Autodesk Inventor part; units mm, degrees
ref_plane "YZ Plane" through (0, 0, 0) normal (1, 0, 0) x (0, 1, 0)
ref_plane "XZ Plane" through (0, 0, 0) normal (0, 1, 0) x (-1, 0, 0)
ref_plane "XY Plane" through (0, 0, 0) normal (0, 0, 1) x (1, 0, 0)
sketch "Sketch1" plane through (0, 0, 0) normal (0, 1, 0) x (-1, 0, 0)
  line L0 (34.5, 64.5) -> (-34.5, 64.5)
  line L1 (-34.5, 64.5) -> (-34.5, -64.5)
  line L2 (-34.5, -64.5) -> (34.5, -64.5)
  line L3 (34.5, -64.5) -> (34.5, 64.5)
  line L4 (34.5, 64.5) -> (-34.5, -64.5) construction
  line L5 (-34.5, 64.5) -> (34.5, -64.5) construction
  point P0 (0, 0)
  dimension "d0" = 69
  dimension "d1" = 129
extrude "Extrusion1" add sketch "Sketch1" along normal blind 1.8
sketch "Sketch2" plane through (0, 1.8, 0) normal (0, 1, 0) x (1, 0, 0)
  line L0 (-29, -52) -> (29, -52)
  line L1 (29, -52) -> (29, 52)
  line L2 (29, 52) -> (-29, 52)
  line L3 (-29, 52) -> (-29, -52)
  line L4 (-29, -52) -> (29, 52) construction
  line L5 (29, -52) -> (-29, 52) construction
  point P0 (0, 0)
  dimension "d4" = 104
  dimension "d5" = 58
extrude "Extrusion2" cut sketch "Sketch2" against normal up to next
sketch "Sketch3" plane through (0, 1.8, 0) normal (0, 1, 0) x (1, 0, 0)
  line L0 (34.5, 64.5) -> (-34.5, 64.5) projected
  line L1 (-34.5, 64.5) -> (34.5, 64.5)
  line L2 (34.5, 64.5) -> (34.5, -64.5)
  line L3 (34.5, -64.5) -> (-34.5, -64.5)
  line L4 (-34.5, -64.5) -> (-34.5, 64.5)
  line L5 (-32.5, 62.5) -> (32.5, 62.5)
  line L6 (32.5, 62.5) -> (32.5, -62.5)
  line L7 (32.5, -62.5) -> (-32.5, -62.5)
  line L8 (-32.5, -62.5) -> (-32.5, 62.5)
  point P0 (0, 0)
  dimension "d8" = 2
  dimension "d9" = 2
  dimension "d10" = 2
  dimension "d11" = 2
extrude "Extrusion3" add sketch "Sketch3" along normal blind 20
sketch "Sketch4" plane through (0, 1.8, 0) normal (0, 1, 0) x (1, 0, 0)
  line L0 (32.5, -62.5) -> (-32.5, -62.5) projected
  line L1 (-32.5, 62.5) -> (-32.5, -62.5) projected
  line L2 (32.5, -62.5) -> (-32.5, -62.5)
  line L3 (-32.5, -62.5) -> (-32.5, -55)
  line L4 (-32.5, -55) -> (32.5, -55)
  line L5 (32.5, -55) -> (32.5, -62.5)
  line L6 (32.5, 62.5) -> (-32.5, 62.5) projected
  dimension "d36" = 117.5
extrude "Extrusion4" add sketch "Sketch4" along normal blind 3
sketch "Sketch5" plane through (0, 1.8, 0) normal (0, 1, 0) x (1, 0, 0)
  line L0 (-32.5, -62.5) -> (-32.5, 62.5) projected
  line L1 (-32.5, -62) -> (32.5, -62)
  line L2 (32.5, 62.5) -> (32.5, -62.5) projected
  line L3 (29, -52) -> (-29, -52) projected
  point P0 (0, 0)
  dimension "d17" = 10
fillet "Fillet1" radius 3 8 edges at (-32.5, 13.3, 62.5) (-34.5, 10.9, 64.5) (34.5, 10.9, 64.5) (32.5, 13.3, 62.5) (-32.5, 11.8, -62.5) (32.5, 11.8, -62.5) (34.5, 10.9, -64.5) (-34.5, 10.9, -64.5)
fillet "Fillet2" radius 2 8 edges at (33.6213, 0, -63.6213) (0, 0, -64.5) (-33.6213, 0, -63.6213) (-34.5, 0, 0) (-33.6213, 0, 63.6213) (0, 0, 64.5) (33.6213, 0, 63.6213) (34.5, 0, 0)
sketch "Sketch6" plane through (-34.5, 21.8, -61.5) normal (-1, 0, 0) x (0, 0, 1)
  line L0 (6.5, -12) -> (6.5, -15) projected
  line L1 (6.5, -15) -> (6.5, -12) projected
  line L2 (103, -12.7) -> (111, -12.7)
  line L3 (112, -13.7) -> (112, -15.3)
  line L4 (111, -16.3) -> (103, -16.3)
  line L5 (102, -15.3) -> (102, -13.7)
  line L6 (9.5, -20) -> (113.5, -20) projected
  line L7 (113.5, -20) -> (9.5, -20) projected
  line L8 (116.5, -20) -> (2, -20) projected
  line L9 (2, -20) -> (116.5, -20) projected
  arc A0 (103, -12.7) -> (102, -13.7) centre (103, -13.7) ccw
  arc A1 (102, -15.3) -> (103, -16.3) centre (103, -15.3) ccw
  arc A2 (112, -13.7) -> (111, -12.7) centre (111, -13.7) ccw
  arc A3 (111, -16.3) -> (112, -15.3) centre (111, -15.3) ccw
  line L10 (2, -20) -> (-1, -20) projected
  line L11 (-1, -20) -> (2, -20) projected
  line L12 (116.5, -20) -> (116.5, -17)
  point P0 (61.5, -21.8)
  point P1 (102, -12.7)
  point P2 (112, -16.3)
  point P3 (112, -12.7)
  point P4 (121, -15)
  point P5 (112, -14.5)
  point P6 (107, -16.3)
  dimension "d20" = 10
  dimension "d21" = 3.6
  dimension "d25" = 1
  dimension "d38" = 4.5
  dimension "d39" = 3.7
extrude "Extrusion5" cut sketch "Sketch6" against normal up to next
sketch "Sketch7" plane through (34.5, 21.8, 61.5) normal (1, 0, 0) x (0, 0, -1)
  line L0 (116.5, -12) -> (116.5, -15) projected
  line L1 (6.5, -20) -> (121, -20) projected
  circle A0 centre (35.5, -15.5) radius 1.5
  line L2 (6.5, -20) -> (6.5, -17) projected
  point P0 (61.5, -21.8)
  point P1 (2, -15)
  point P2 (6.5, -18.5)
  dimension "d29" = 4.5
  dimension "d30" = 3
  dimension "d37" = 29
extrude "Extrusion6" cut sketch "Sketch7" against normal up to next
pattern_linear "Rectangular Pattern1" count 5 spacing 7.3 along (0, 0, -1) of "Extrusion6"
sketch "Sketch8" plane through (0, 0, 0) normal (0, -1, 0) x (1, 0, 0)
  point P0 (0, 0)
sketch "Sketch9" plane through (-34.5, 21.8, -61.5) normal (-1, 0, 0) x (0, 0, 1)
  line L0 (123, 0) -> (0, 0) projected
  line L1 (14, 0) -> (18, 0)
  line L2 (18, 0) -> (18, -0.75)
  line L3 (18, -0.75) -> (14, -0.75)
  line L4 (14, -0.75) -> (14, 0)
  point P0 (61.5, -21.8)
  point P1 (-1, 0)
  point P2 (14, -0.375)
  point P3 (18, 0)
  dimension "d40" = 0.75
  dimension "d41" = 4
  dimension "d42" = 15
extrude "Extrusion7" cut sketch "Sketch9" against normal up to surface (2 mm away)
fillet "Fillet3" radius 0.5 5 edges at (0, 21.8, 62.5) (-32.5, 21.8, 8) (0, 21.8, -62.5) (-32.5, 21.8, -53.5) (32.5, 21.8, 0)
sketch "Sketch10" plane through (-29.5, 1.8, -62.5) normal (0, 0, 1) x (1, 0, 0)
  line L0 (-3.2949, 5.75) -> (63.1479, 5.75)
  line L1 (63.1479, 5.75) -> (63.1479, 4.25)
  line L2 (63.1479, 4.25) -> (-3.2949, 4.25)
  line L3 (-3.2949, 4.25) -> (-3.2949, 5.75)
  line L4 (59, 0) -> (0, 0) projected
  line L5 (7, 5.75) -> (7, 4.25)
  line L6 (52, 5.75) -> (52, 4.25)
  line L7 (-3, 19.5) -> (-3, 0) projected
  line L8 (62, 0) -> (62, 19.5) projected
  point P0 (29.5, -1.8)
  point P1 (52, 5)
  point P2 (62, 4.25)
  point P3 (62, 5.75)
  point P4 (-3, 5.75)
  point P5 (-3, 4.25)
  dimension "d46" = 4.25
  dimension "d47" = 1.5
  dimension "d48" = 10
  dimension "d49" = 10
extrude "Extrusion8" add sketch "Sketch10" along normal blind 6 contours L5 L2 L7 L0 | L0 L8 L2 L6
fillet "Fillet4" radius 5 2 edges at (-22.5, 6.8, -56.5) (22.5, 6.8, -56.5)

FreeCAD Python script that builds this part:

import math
import FreeCAD as App
import Part
import Sketcher

V = App.Vector
Q = App.Units.Quantity


def edges_at(feature, points):
    """Names of the edges that pass closest to the given points."""
    edges = feature.Shape.Edges
    near = lambda p: min(range(len(edges)), key=lambda i: edges[i].distToShape(Part.Vertex(*p))[0])
    return sorted({f"Edge{near(p) + 1}" for p in points})

doc = App.newDocument("Part")
body = doc.addObject("PartDesign::Body", "Body")

sketch1 = body.newObject("Sketcher::SketchObject", "Sketch")
sketch1.AttachmentSupport = (doc.getObject("XZ_Plane"), [""])
sketch1.MapMode = "FlatFace"
sketch1.addGeometry([
    Part.LineSegment(V(-34.5, -64.5, 0), V(-34.5, 64.5, 0)),
    Part.LineSegment(V(-34.5, 64.5, 0), V(34.5, 64.5, 0)),
    Part.LineSegment(V(34.5, 64.5, 0), V(34.5, -64.5, 0)),
    Part.LineSegment(V(34.5, -64.5, 0), V(-34.5, -64.5, 0)),
], False)
sketch1.addConstraint([
    Sketcher.Constraint("Coincident", 0, 2, 1, 1),
    Sketcher.Constraint("Coincident", 1, 2, 2, 1),
    Sketcher.Constraint("Coincident", 2, 2, 3, 1),
    Sketcher.Constraint("Coincident", 3, 2, 0, 1),
    Sketcher.Constraint("Vertical", 0),
    Sketcher.Constraint("Horizontal", 1),
    Sketcher.Constraint("Vertical", 2),
    Sketcher.Constraint("Horizontal", 3),
    Sketcher.Constraint("Symmetric", 0, 2, 2, 2, -1, 1),
    Sketcher.Constraint("DistanceX", 1, 1, 1, 2, Q("69 mm")),
    Sketcher.Constraint("DistanceY", 0, 1, 0, 2, Q("129 mm")),
])
pad1 = body.newObject("PartDesign::Pad", "Pad")
pad1.Profile = sketch1
pad1.Length = 1.8
pad1.Reversed = True

sketch2 = body.newObject("Sketcher::SketchObject", "Sketch001")
sketch2.AttachmentSupport = (doc.getObject("XZ_Plane"), [""])
sketch2.MapMode = "FlatFace"
sketch2.AttachmentOffset = App.Placement(V(0, 0, -1.8), App.Rotation())
sketch2.addGeometry([
    Part.LineSegment(V(-29, -52, 0), V(-29, 52, 0)),
    Part.LineSegment(V(-29, 52, 0), V(29, 52, 0)),
    Part.LineSegment(V(29, 52, 0), V(29, -52, 0)),
    Part.LineSegment(V(29, -52, 0), V(-29, -52, 0)),
], False)
sketch2.addConstraint([
    Sketcher.Constraint("Coincident", 0, 2, 1, 1),
    Sketcher.Constraint("Coincident", 1, 2, 2, 1),
    Sketcher.Constraint("Coincident", 2, 2, 3, 1),
    Sketcher.Constraint("Coincident", 3, 2, 0, 1),
    Sketcher.Constraint("Vertical", 0),
    Sketcher.Constraint("Horizontal", 1),
    Sketcher.Constraint("Vertical", 2),
    Sketcher.Constraint("Horizontal", 3),
    Sketcher.Constraint("Symmetric", 0, 2, 2, 2, -1, 1),
    Sketcher.Constraint("DistanceX", 1, 1, 1, 2, Q("58 mm")),
    Sketcher.Constraint("DistanceY", 0, 1, 0, 2, Q("104 mm")),
])
pocket1 = body.newObject("PartDesign::Pocket", "Pocket")
pocket1.Profile = sketch2
pocket1.Type = "UpToFirst"
pocket1.Reversed = True

sketch3 = body.newObject("Sketcher::SketchObject", "Sketch002")
sketch3.AttachmentSupport = (doc.getObject("XZ_Plane"), [""])
sketch3.MapMode = "FlatFace"
sketch3.AttachmentOffset = App.Placement(V(0, 0, -1.8), App.Rotation())
sketch3.addGeometry([
    Part.LineSegment(V(34.5, 64.5, 0), V(34.5, -64.5, 0)),
    Part.LineSegment(V(34.5, -64.5, 0), V(-34.5, -64.5, 0)),
    Part.LineSegment(V(-34.5, -64.5, 0), V(-34.5, 64.5, 0)),
    Part.LineSegment(V(-34.5, 64.5, 0), V(34.5, 64.5, 0)),
    Part.LineSegment(V(-32.5, 62.5, 0), V(-32.5, -62.5, 0)),
    Part.LineSegment(V(-32.5, -62.5, 0), V(32.5, -62.5, 0)),
    Part.LineSegment(V(32.5, -62.5, 0), V(32.5, 62.5, 0)),
    Part.LineSegment(V(32.5, 62.5, 0), V(-32.5, 62.5, 0)),
], False)
sketch3.addConstraint([
    Sketcher.Constraint("Coincident", 0, 2, 1, 1),
    Sketcher.Constraint("Coincident", 1, 2, 2, 1),
    Sketcher.Constraint("Coincident", 2, 2, 3, 1),
    Sketcher.Constraint("Coincident", 3, 2, 0, 1),
    Sketcher.Constraint("Coincident", 4, 2, 5, 1),
    Sketcher.Constraint("Coincident", 5, 2, 6, 1),
    Sketcher.Constraint("Coincident", 6, 2, 7, 1),
    Sketcher.Constraint("Coincident", 7, 2, 4, 1),
    Sketcher.Constraint("Vertical", 0),
    Sketcher.Constraint("Horizontal", 1),
    Sketcher.Constraint("Vertical", 2),
    Sketcher.Constraint("Horizontal", 3),
    Sketcher.Constraint("Vertical", 4),
    Sketcher.Constraint("Horizontal", 5),
    Sketcher.Constraint("Vertical", 6),
    Sketcher.Constraint("Horizontal", 7),
    Sketcher.Constraint("Symmetric", 0, 2, 2, 2, -1, 1),
    Sketcher.Constraint("Symmetric", 4, 2, 6, 2, -1, 1),
    Sketcher.Constraint("DistanceX", 1, 2, 4, 2, Q("2 mm")),
    Sketcher.Constraint("DistanceY", 1, 2, 4, 2, Q("2 mm")),
    Sketcher.Constraint("DistanceX", 1, 2, 1, 1, Q("69 mm")),
    Sketcher.Constraint("DistanceY", 0, 2, 0, 1, Q("129 mm")),
])
pad2 = body.newObject("PartDesign::Pad", "Pad001")
pad2.Profile = sketch3
pad2.Length = 20
pad2.Reversed = True

sketch4 = body.newObject("Sketcher::SketchObject", "Sketch003")
sketch4.AttachmentSupport = (doc.getObject("XZ_Plane"), [""])
sketch4.MapMode = "FlatFace"
sketch4.AttachmentOffset = App.Placement(V(0, 0, -1.8), App.Rotation())
sketch4.addGeometry([
    Part.LineSegment(V(-32.5, 62.5, 0), V(32.5, 62.5, 0)),
    Part.LineSegment(V(32.5, 62.5, 0), V(32.5, 55, 0)),
    Part.LineSegment(V(32.5, 55, 0), V(-32.5, 55, 0)),
    Part.LineSegment(V(-32.5, 55, 0), V(-32.5, 62.5, 0)),
], False)
sketch4.addConstraint([
    Sketcher.Constraint("Coincident", 0, 2, 1, 1),
    Sketcher.Constraint("Coincident", 1, 2, 2, 1),
    Sketcher.Constraint("Coincident", 2, 2, 3, 1),
    Sketcher.Constraint("Coincident", 3, 2, 0, 1),
    Sketcher.Constraint("Horizontal", 0),
    Sketcher.Constraint("Vertical", 1),
    Sketcher.Constraint("Horizontal", 2),
    Sketcher.Constraint("Vertical", 3),
    Sketcher.Constraint("DistanceX", 0, 1, 0, 2, Q("65 mm")),
    Sketcher.Constraint("DistanceY", 1, 2, 1, 1, Q("7.5 mm")),
    Sketcher.Constraint("DistanceY", -1, 1, 1, 2, Q("55 mm")),
    Sketcher.Constraint("DistanceX", -1, 1, 0, 2, Q("32.5 mm")),
])
pad3 = body.newObject("PartDesign::Pad", "Pad002")
pad3.Profile = sketch4
pad3.Length = 3
pad3.Reversed = True
doc.recompute()

fillet = body.newObject("PartDesign::Fillet", "Fillet")
fillet.Base = (pad3, edges_at(pad3, [
    (-32.5, 13.3, 62.5),
    (-34.5, 10.9, 64.5),
    (34.5, 10.9, 64.5),
    (32.5, 13.3, 62.5),
    (-32.5, 11.8, -62.5),
    (32.5, 11.8, -62.5),
    (34.5, 10.9, -64.5),
    (-34.5, 10.9, -64.5),
]))
fillet.Radius = 3
doc.recompute()

fillet2 = body.newObject("PartDesign::Fillet", "Fillet001")
fillet2.Base = (fillet, edges_at(fillet, [
    (33.621, 0, -63.621),
    (0, 0, -64.5),
    (-33.621, 0, -63.621),
    (-34.5, 0, 0),
    (-33.621, 0, 63.621),
    (0, 0, 64.5),
    (33.621, 0, 63.621),
    (34.5, 0, 0),
]))
fillet2.Radius = 2

sketch5 = body.newObject("Sketcher::SketchObject", "Sketch004")
sketch5.AttachmentSupport = (doc.getObject("YZ_Plane"), [""])
sketch5.MapMode = "FlatFace"
sketch5.AttachmentOffset = App.Placement(V(0, 0, -34.5), App.Rotation())
sketch5.addGeometry([
    Part.LineSegment(V(9.1, 49.5, 0), V(9.1, 41.5, 0)),
    Part.ArcOfCircle(Part.Circle(V(8.1, 41.5, 0), V(0, 0, 1), 1), math.radians(-90), math.radians(0)),
    Part.LineSegment(V(8.1, 40.5, 0), V(6.5, 40.5, 0)),
    Part.ArcOfCircle(Part.Circle(V(6.5, 41.5, 0), V(0, 0, 1), 1), math.radians(180), math.radians(270)),
    Part.LineSegment(V(5.5, 41.5, 0), V(5.5, 49.5, 0)),
    Part.ArcOfCircle(Part.Circle(V(6.5, 49.5, 0), V(0, 0, 1), 1), math.radians(90), math.radians(180)),
    Part.LineSegment(V(6.5, 50.5, 0), V(8.1, 50.5, 0)),
    Part.ArcOfCircle(Part.Circle(V(8.1, 49.5, 0), V(0, 0, 1), 1), math.radians(0), math.radians(90)),
], False)
sketch5.addConstraint([
    Sketcher.Constraint("Tangent", 0, 2, 1, 2),
    Sketcher.Constraint("Tangent", 1, 1, 2, 1),
    Sketcher.Constraint("Tangent", 2, 2, 3, 2),
    Sketcher.Constraint("Tangent", 3, 1, 4, 1),
    Sketcher.Constraint("Tangent", 4, 2, 5, 2),
    Sketcher.Constraint("Tangent", 5, 1, 6, 1),
    Sketcher.Constraint("Tangent", 6, 2, 7, 2),
    Sketcher.Constraint("Tangent", 7, 1, 0, 1),
    Sketcher.Constraint("Vertical", 0),
    Sketcher.Constraint("Horizontal", 2),
    Sketcher.Constraint("Vertical", 4),
    Sketcher.Constraint("Horizontal", 6),
    Sketcher.Constraint("Equal", 1, 3),
    Sketcher.Constraint("Equal", 3, 5),
    Sketcher.Constraint("Equal", 5, 7),
    Sketcher.Constraint("Radius", 1, Q("1 mm")),
    Sketcher.Constraint("DistanceX", 3, 1, 0, 2, Q("3.6 mm")),
    Sketcher.Constraint("DistanceY", 0, 2, 0, 1, Q("8 mm")),
    Sketcher.Constraint("DistanceX", -1, 1, 1, 3, Q("8.1 mm")),
    Sketcher.Constraint("DistanceY", -1, 1, 1, 3, Q("41.5 mm")),
])
pocket2 = body.newObject("PartDesign::Pocket", "Pocket001")
pocket2.Profile = sketch5
pocket2.Type = "UpToFirst"
pocket2.Reversed = True

sketch6 = body.newObject("Sketcher::SketchObject", "Sketch005")
sketch6.AttachmentSupport = (doc.getObject("YZ_Plane"), [""])
sketch6.MapMode = "FlatFace"
sketch6.AttachmentOffset = App.Placement(V(0, 0, 34.5), App.Rotation())
sketch6.addGeometry(Part.Circle(V(6.3, 26, 0), V(0, 0, 1), 1.5), False)
sketch6.addConstraint([
    Sketcher.Constraint("Diameter", 0, Q("3 mm")),
    Sketcher.Constraint("DistanceY", -1, 1, 0, 3, Q("26 mm")),
    Sketcher.Constraint("DistanceX", -1, 1, 0, 3, Q("6.3 mm")),
])
pocket3 = body.newObject("PartDesign::Pocket", "Pocket002")
pocket3.Profile = sketch6
pocket3.Type = "UpToFirst"
doc.recompute()

linearpattern = body.newObject("PartDesign::LinearPattern", "LinearPattern")
linearpattern.Originals = [pocket3]
linearpattern.Direction = (doc.getObject("Z_Axis"), [""])
linearpattern.Mode = "offset"
linearpattern.Offset = 7.3
linearpattern.Occurrences = 5
linearpattern.Reversed = True
body.Tip = linearpattern

sketch7 = body.newObject("Sketcher::SketchObject", "Sketch006")
sketch7.AttachmentSupport = (doc.getObject("YZ_Plane"), [""])
sketch7.MapMode = "FlatFace"
sketch7.AttachmentOffset = App.Placement(V(0, 0, -34.5), App.Rotation())
sketch7.addGeometry([
    Part.LineSegment(V(21.05, -43.5, 0), V(21.8, -43.5, 0)),
    Part.LineSegment(V(21.8, -43.5, 0), V(21.8, -47.5, 0)),
    Part.LineSegment(V(21.8, -47.5, 0), V(21.05, -47.5, 0)),
    Part.LineSegment(V(21.05, -47.5, 0), V(21.05, -43.5, 0)),
], False)
sketch7.addConstraint([
    Sketcher.Constraint("Coincident", 0, 2, 1, 1),
    Sketcher.Constraint("Coincident", 1, 2, 2, 1),
    Sketcher.Constraint("Coincident", 2, 2, 3, 1),
    Sketcher.Constraint("Coincident", 3, 2, 0, 1),
    Sketcher.Constraint("Horizontal", 0),
    Sketcher.Constraint("Vertical", 1),
    Sketcher.Constraint("Horizontal", 2),
    Sketcher.Constraint("Vertical", 3),
    Sketcher.Constraint("DistanceY", 1, 2, 1, 1, Q("4 mm")),
    Sketcher.Constraint("DistanceX", 0, 1, 0, 2, Q("0.75 mm")),
    Sketcher.Constraint("DistanceX", -1, 1, 0, 2, Q("21.8 mm")),
    Sketcher.Constraint("DistanceY", 0, 2, -1, 1, Q("43.5 mm")),
])
pocket4 = body.newObject("PartDesign::Pocket", "Pocket003")
pocket4.Profile = sketch7
pocket4.Length = 2
pocket4.Reversed = True
doc.recompute()

fillet3 = body.newObject("PartDesign::Fillet", "Fillet002")
fillet3.Base = (pocket4, edges_at(pocket4, [
    (0, 21.8, 62.5),
    (-32.5, 21.8, 8),
    (0, 21.8, -62.5),
    (-32.5, 21.8, -53.5),
    (32.5, 21.8, 0),
]))
fillet3.Radius = 0.5

sketch8 = body.newObject("Sketcher::SketchObject", "Sketch007")
sketch8.AttachmentSupport = (doc.getObject("XY_Plane"), [""])
sketch8.MapMode = "FlatFace"
sketch8.AttachmentOffset = App.Placement(V(0, 0, -62.5), App.Rotation())
sketch8.addGeometry([
    Part.LineSegment(V(-22.5, 6.05, 0), V(-22.5, 7.55, 0)),
    Part.LineSegment(V(-22.5, 7.55, 0), V(-32.5, 7.55, 0)),
    Part.LineSegment(V(-32.5, 7.55, 0), V(-32.5, 6.05, 0)),
    Part.LineSegment(V(-32.5, 6.05, 0), V(-22.5, 6.05, 0)),
    Part.LineSegment(V(32.5, 7.55, 0), V(22.5, 7.55, 0)),
    Part.LineSegment(V(22.5, 7.55, 0), V(22.5, 6.05, 0)),
    Part.LineSegment(V(22.5, 6.05, 0), V(32.5, 6.05, 0)),
    Part.LineSegment(V(32.5, 6.05, 0), V(32.5, 7.55, 0)),
], False)
sketch8.addConstraint([
    Sketcher.Constraint("Coincident", 0, 2, 1, 1),
    Sketcher.Constraint("Coincident", 1, 2, 2, 1),
    Sketcher.Constraint("Coincident", 2, 2, 3, 1),
    Sketcher.Constraint("Coincident", 3, 2, 0, 1),
    Sketcher.Constraint("Coincident", 4, 2, 5, 1),
    Sketcher.Constraint("Coincident", 5, 2, 6, 1),
    Sketcher.Constraint("Coincident", 6, 2, 7, 1),
    Sketcher.Constraint("Coincident", 7, 2, 4, 1),
    Sketcher.Constraint("Vertical", 0),
    Sketcher.Constraint("Horizontal", 1),
    Sketcher.Constraint("Vertical", 2),
    Sketcher.Constraint("Horizontal", 3),
    Sketcher.Constraint("Horizontal", 4),
    Sketcher.Constraint("Vertical", 5),
    Sketcher.Constraint("Horizontal", 6),
    Sketcher.Constraint("Vertical", 7),
    Sketcher.Constraint("Symmetric", 0, 2, 4, 2, -2),
    Sketcher.Constraint("Symmetric", 2, 2, 6, 2, -2),
    Sketcher.Constraint("DistanceX", 1, 2, 1, 1, Q("10 mm")),
    Sketcher.Constraint("DistanceY", 0, 1, 0, 2, Q("1.5 mm")),
    Sketcher.Constraint("DistanceX", 0, 2, 4, 2, Q("45 mm")),
    Sketcher.Constraint("DistanceY", -1, 1, 0, 2, Q("7.55 mm")),
])
pad4 = body.newObject("PartDesign::Pad", "Pad003")
pad4.Profile = sketch8
pad4.Length = 6
doc.recompute()

fillet4 = body.newObject("PartDesign::Fillet", "Fillet003")
fillet4.Base = (pad4, edges_at(pad4, [(-22.5, 6.8, -56.5), (22.5, 6.8, -56.5)]))
fillet4.Radius = 5

doc.recompute()
